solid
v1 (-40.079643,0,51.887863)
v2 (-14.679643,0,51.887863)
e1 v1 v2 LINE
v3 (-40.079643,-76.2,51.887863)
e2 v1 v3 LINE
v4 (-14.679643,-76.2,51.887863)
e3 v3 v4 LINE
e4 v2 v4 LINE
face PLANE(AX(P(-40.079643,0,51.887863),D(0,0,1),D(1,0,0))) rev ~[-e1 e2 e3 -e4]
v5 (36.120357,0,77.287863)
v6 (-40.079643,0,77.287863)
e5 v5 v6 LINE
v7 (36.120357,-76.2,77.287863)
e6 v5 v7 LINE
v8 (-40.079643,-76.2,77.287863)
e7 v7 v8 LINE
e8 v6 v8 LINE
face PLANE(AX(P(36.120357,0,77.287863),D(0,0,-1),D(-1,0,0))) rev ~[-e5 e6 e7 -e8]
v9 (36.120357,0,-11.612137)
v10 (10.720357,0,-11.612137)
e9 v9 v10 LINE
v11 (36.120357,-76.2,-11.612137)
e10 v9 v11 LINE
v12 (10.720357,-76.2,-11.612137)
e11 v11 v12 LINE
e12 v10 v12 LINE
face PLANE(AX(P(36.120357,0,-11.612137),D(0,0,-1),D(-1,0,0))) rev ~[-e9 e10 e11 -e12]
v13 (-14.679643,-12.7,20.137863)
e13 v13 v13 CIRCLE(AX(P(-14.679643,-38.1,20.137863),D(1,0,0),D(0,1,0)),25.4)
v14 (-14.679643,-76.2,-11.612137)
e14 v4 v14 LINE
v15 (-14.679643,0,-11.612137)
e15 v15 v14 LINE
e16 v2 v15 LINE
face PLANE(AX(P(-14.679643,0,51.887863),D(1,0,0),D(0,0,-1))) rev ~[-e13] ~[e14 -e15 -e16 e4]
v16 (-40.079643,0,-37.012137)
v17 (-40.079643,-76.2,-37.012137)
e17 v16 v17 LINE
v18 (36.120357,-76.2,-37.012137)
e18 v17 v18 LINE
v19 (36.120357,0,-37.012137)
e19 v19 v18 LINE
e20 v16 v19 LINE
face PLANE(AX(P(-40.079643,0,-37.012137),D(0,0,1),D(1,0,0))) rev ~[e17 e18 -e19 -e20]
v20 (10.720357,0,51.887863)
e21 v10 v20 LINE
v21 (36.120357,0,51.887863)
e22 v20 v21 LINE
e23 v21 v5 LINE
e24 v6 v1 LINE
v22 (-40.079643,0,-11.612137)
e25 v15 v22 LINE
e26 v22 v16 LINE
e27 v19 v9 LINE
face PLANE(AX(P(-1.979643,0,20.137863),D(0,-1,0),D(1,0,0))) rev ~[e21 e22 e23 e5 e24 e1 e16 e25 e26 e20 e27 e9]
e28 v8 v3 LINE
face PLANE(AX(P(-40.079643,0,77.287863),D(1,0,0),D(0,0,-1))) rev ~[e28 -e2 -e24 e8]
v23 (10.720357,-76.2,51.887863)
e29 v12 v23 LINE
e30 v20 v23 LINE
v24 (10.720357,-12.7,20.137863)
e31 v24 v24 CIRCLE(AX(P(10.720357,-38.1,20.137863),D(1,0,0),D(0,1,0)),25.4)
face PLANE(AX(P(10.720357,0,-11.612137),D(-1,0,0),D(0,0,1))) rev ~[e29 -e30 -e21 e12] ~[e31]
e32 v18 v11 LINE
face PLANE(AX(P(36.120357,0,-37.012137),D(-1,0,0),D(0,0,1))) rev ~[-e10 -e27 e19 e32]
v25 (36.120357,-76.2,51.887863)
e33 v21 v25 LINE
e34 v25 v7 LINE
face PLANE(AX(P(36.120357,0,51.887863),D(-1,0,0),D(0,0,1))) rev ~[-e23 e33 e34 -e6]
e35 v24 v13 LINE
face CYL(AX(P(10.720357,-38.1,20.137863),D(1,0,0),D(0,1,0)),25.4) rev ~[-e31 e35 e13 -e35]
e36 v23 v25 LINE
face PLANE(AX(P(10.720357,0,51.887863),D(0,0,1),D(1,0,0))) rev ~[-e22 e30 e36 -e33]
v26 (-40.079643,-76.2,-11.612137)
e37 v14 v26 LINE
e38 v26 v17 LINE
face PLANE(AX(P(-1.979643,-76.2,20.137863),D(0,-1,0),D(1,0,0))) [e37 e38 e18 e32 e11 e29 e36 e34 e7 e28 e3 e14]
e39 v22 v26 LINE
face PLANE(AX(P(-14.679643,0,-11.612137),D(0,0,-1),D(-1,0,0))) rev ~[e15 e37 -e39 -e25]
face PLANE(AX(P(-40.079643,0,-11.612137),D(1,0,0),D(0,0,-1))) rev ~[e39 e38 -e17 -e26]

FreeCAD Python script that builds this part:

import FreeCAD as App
import Part
import Sketcher

V = App.Vector
Q = App.Units.Quantity


def add_polygon(sketch, points):
    """Adds a closed chain of lines whose ends are joined by coincident constraints."""
    first, n = sketch.GeometryCount, len(points)
    for a, b in zip(points, points[1:] + points[:1]):
        sketch.addGeometry(Part.LineSegment(App.Vector(*a, 0), App.Vector(*b, 0)), False)
    for i in range(n):
        sketch.addConstraint(Sketcher.Constraint("Coincident", first + i, 2, first + (i + 1) % n, 1))

doc = App.newDocument("Part")
body = doc.addObject("PartDesign::Body", "Body")

sketch1 = body.newObject("Sketcher::SketchObject", "Sketch")
sketch1.AttachmentSupport = (doc.getObject("XZ_Plane"), [""])
sketch1.MapMode = "FlatFace"
add_polygon(sketch1, [(-40, -12), (-40, -37), (36, -37), (36, -12), (11, -12), (11, 52), (36, 52), (36, 77), (-40, 77), (-40, 52), (-15, 52), (-15, -12)])
sketch1.addConstraint([
    Sketcher.Constraint("Vertical", 0),
    Sketcher.Constraint("Horizontal", 1),
    Sketcher.Constraint("Vertical", 2),
    Sketcher.Constraint("Horizontal", 3),
    Sketcher.Constraint("Vertical", 4),
    Sketcher.Constraint("Horizontal", 5),
    Sketcher.Constraint("Vertical", 6),
    Sketcher.Constraint("Horizontal", 7),
    Sketcher.Constraint("Vertical", 8),
    Sketcher.Constraint("Horizontal", 9),
    Sketcher.Constraint("Vertical", 10),
    Sketcher.Constraint("Horizontal", 11),
    Sketcher.Constraint("Horizontal", 5, 2, 8, 2),
    Sketcher.Constraint("Horizontal", 3, 2, 10, 2),
    Sketcher.Constraint("Vertical", 2, 2, 5, 2),
    Sketcher.Constraint("Vertical", 0, 2, 7, 2),
    Sketcher.Constraint("Equal", 5, 9),
    Sketcher.Constraint("Equal", 11, 0),
    Sketcher.Constraint("Equal", 2, 6),
    Sketcher.Constraint("DistanceX", 1, 1, 1, 2, Q("3 in")),
    Sketcher.Constraint("DistanceX", 3, 2, 3, 1, Q("1 in")),
    Sketcher.Constraint("DistanceY", 4, 1, 4, 2, Q("2.5 in")),
    Sketcher.Constraint("DistanceX", 0, 2, -1, 1, Q("40.079643 mm")),
    Sketcher.Constraint("DistanceY", 0, 2, -1, 1, Q("37.012137 mm")),
])
pad1 = body.newObject("PartDesign::Pad", "Pad")
pad1.Profile = sketch1
pad1.Length = Q("3 in")

sketch2 = body.newObject("Sketcher::SketchObject", "Sketch001")
sketch2.AttachmentSupport = (doc.getObject("YZ_Plane"), [""])
sketch2.MapMode = "FlatFace"
sketch2.AttachmentOffset = App.Placement(V(0, 0, 10.720357), App.Rotation())
sketch2.addGeometry(Part.Circle(V(-38, 20, 0), V(0, 0, 1), 25), False)
sketch2.addConstraint([
    Sketcher.Constraint("Diameter", 0, Q("2 in")),
    Sketcher.Constraint("DistanceX", 0, 3, -1, 1, Q("1.5 in")),
    Sketcher.Constraint("DistanceY", -1, 1, 0, 3, Q("20.137863 mm")),
])
pocket1 = body.newObject("PartDesign::Pocket", "Pocket")
pocket1.Profile = sketch2
pocket1.Length = Q("1 in")

doc.recompute()
